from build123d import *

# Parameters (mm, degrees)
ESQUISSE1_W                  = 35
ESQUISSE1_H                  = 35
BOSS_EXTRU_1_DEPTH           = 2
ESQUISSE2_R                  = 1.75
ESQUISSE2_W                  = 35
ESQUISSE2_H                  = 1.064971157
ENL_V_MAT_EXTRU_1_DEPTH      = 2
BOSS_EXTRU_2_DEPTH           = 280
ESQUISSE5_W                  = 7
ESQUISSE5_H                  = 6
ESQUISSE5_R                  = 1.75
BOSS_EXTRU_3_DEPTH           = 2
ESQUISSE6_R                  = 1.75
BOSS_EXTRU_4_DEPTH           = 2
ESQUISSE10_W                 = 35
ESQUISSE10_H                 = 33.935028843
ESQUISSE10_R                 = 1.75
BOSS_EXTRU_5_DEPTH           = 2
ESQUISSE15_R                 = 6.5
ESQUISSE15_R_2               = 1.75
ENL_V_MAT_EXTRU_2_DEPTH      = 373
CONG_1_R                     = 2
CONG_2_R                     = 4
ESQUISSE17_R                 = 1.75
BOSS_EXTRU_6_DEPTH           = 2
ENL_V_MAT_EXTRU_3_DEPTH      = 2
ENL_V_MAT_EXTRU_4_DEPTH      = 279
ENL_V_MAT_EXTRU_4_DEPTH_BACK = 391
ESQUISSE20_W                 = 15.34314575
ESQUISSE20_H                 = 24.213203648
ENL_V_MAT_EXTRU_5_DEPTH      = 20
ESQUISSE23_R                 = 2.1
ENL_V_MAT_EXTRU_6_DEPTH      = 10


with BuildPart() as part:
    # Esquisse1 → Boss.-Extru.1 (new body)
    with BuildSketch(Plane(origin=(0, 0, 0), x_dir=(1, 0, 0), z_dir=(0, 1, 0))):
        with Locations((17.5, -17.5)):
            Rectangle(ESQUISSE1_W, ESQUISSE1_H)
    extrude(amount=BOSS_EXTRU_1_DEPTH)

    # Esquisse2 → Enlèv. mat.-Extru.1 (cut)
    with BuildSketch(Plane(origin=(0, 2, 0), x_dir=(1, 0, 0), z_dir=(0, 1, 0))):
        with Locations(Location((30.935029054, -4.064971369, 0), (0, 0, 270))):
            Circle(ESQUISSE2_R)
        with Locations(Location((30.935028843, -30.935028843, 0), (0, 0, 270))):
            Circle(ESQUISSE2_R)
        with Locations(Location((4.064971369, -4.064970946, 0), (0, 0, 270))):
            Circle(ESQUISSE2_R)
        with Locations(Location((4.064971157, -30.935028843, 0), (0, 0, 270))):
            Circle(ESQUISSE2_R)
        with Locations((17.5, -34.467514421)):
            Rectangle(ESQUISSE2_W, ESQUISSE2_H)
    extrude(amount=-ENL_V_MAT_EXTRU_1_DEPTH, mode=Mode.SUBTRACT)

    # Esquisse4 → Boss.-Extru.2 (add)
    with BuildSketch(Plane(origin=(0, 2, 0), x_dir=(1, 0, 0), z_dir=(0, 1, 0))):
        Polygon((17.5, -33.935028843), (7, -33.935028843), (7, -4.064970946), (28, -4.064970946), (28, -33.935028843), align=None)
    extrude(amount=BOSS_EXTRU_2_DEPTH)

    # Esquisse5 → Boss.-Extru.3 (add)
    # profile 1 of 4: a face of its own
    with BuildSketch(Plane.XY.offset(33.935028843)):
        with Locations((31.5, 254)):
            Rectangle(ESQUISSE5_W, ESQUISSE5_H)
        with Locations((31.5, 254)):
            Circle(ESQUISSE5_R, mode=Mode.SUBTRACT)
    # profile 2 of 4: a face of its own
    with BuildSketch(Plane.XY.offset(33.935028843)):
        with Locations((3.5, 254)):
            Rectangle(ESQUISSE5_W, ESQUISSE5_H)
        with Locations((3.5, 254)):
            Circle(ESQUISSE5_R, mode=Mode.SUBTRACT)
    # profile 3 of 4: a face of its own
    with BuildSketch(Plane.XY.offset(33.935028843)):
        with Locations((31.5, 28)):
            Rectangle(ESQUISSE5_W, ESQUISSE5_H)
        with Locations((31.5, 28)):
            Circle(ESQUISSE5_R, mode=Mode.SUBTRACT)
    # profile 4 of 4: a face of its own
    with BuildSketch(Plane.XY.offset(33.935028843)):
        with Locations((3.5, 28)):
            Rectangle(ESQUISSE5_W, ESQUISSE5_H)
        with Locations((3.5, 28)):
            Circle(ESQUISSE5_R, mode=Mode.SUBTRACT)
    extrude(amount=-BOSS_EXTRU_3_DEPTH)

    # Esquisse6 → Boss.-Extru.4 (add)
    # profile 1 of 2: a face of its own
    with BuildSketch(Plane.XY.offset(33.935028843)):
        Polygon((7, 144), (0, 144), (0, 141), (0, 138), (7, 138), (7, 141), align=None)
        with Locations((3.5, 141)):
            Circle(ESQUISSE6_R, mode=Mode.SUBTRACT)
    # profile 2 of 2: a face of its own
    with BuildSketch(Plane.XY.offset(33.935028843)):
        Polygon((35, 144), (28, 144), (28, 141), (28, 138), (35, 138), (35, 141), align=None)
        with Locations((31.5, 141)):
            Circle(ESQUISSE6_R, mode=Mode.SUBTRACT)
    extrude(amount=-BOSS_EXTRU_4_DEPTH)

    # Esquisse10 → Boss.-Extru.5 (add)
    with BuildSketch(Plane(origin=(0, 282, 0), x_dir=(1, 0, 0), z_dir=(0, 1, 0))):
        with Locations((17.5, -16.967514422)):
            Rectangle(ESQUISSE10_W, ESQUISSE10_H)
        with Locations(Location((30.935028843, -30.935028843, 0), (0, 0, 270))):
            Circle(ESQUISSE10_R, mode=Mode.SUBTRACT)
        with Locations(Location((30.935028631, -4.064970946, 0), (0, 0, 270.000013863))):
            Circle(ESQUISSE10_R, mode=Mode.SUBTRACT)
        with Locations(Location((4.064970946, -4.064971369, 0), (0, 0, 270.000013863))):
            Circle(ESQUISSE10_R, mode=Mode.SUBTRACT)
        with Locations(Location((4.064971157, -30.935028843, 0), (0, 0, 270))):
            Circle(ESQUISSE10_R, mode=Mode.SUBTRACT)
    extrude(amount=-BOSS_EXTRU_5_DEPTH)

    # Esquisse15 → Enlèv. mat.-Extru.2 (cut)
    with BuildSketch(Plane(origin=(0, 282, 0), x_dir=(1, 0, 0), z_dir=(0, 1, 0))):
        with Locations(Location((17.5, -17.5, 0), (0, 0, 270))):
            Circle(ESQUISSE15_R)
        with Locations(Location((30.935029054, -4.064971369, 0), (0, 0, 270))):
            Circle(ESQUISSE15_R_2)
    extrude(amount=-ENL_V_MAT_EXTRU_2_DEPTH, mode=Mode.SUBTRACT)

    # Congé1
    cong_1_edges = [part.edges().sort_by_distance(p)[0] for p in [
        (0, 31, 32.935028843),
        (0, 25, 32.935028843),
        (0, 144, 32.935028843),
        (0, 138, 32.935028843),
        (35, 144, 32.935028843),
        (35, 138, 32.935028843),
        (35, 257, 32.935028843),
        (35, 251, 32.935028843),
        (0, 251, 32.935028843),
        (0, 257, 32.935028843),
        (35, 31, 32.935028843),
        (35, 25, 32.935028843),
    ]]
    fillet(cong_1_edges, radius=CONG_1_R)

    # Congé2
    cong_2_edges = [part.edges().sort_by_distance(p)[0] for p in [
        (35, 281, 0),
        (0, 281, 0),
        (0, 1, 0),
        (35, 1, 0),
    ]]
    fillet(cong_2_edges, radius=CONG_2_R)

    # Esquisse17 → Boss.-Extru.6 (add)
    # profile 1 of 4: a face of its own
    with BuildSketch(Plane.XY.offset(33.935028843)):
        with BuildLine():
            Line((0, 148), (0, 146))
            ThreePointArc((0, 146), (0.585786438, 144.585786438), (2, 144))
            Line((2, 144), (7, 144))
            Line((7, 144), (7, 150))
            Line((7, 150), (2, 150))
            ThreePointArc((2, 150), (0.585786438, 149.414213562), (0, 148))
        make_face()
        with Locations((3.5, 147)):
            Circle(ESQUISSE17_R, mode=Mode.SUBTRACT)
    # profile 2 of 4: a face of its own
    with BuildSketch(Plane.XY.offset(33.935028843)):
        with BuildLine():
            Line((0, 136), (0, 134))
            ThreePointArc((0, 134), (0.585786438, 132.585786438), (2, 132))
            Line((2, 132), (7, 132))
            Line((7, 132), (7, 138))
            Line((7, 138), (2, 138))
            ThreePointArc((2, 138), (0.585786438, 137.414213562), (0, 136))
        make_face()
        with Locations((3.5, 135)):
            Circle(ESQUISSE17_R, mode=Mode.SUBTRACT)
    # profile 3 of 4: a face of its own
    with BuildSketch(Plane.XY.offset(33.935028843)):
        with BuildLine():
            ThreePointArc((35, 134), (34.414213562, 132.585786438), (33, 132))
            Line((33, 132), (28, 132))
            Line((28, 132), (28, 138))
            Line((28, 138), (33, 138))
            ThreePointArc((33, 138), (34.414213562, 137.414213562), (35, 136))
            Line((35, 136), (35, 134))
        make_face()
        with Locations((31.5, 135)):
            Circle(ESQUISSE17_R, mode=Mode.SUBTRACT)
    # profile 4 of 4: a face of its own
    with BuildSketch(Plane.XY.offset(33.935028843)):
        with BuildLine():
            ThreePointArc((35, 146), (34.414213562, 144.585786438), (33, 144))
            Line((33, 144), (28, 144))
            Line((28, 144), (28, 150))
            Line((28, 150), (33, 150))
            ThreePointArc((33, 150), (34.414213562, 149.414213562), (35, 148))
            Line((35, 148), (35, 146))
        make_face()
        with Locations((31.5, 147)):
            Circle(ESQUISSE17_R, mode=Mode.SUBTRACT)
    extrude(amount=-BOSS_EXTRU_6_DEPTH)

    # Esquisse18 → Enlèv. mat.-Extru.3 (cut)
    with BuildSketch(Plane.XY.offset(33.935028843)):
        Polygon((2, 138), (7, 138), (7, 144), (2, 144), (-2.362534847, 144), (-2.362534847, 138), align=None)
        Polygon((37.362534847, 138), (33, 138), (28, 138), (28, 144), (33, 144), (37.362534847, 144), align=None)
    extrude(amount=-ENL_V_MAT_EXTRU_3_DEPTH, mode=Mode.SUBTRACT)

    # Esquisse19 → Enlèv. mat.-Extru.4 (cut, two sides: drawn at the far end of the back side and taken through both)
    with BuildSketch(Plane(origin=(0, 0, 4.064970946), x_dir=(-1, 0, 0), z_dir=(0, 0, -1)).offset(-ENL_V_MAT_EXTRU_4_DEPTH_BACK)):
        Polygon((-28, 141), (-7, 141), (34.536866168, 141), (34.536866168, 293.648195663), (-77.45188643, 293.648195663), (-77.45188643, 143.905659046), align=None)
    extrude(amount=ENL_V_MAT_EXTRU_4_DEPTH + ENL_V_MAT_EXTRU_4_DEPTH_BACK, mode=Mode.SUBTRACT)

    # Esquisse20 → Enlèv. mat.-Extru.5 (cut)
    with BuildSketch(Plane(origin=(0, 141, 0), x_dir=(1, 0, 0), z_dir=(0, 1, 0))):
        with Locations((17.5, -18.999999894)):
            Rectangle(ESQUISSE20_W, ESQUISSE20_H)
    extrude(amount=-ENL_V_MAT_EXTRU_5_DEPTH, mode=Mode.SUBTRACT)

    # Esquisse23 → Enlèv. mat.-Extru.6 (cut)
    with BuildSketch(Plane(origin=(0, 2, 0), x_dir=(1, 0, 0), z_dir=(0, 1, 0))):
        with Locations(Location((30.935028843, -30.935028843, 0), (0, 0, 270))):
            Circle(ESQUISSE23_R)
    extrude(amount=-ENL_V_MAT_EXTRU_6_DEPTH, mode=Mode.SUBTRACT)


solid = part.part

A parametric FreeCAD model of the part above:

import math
import FreeCAD as App
import Part
import Sketcher
from FreeCAD import Vector


def edges_at(feature, points):
    """Names of the edges that pass closest to the given points."""
    edges = feature.Shape.Edges
    near = lambda p: min(range(len(edges)), key=lambda i: edges[i].distToShape(Part.Vertex(*p))[0])
    return sorted({f"Edge{near(p) + 1}" for p in points})


def add_polygon(sketch, points):
    """Adds a closed chain of lines whose ends are joined by coincident constraints."""
    first, n = sketch.GeometryCount, len(points)
    for a, b in zip(points, points[1:] + points[:1]):
        sketch.addGeometry(Part.LineSegment(App.Vector(*a, 0), App.Vector(*b, 0)), False)
    for i in range(n):
        sketch.addConstraint(Sketcher.Constraint("Coincident", first + i, 2, first + (i + 1) % n, 1))

doc = App.newDocument("Part")
body = doc.addObject("PartDesign::Body", "Body")

sketch1 = doc.addObject("Sketcher::SketchObject", "Sketch")
body.addObject(sketch1)
sketch1.AttachmentSupport = (doc.XZ_Plane, [""])
sketch1.MapMode = "FlatFace"
add_polygon(sketch1, [(0, 0), (0, 35), (35, 35), (35, 0)])
sketch1.addConstraint(Sketcher.Constraint("Vertical", 0))
sketch1.addConstraint(Sketcher.Constraint("Horizontal", 1))
sketch1.addConstraint(Sketcher.Constraint("Vertical", 2))
sketch1.addConstraint(Sketcher.Constraint("Horizontal", 3))
sketch1.addConstraint(Sketcher.Constraint("Coincident", 3, 2, -1, 1))
sketch1.addConstraint(Sketcher.Constraint("Equal", 3, 0))
sketch1.addConstraint(Sketcher.Constraint("DistanceX", 1, 1, 1, 2, 35.0))
pad1 = doc.addObject("PartDesign::Pad", "Pad")
body.addObject(pad1)
pad1.Profile = sketch1
pad1.Length = 2
pad1.Reversed = True

sketch2 = doc.addObject("Sketcher::SketchObject", "Sketch001")
body.addObject(sketch2)
sketch2.AttachmentSupport = (doc.XZ_Plane, [""])
sketch2.MapMode = "FlatFace"
sketch2.AttachmentOffset = App.Placement(Vector(0, 0, -2), App.Rotation())
sketch2.addGeometry(Part.Circle(Vector(30.9, 4.1, 0), Vector(0, 0, 1), 1.8), False)
sketch2.addGeometry(Part.Circle(Vector(30.9, 30.9, 0), Vector(0, 0, 1), 1.8), False)
sketch2.addGeometry(Part.Circle(Vector(4.1, 4.1, 0), Vector(0, 0, 1), 1.8), False)
sketch2.addGeometry(Part.Circle(Vector(4.1, 30.9, 0), Vector(0, 0, 1), 1.8), False)
add_polygon(sketch2, [(0, 33.9), (0, 35), (35, 35), (35, 33.9)])
sketch2.addConstraint(Sketcher.Constraint("Vertical", 4))
sketch2.addConstraint(Sketcher.Constraint("Horizontal", 5))
sketch2.addConstraint(Sketcher.Constraint("Vertical", 6))
sketch2.addConstraint(Sketcher.Constraint("Horizontal", 7))
sketch2.addConstraint(Sketcher.Constraint("Equal", 0, 1))
sketch2.addConstraint(Sketcher.Constraint("Equal", 1, 2))
sketch2.addConstraint(Sketcher.Constraint("Equal", 2, 3))
sketch2.addConstraint(Sketcher.Constraint("PointOnObject", 4, 2, -2))
sketch2.addConstraint(Sketcher.Constraint("Horizontal", 0, 3, 2, 3))
sketch2.addConstraint(Sketcher.Constraint("Horizontal", 1, 3, 3, 3))
sketch2.addConstraint(Sketcher.Constraint("Vertical", 0, 3, 1, 3))
sketch2.addConstraint(Sketcher.Constraint("Vertical", 2, 3, 3, 3))
sketch2.addConstraint(Sketcher.Constraint("Diameter", 0, 3.5))
sketch2.addConstraint(Sketcher.Constraint("DistanceX", 5, 1, 5, 2, 35.0))
sketch2.addConstraint(Sketcher.Constraint("DistanceY", -1, 1, 4, 2, 35.0))
sketch2.addConstraint(Sketcher.Constraint("DistanceY", 1, 3, 6, 2, 3.0))
sketch2.addConstraint(Sketcher.Constraint("DistanceY", 4, 1, 4, 2, 1.064971))
sketch2.addConstraint(Sketcher.Constraint("DistanceX", -1, 1, 0, 3, 30.935029))
sketch2.addConstraint(Sketcher.Constraint("DistanceY", -1, 1, 0, 3, 4.064971))
sketch2.addConstraint(Sketcher.Constraint("DistanceX", -1, 1, 2, 3, 4.064971))
pocket1 = doc.addObject("PartDesign::Pocket", "Pocket")
body.addObject(pocket1)
pocket1.Profile = sketch2
pocket1.Length = 2
pocket1.Reversed = True

sketch3 = doc.addObject("Sketcher::SketchObject", "Sketch002")
body.addObject(sketch3)
sketch3.AttachmentSupport = (doc.XZ_Plane, [""])
sketch3.MapMode = "FlatFace"
sketch3.AttachmentOffset = App.Placement(Vector(0, 0, -2), App.Rotation())
add_polygon(sketch3, [(7, 34), (28, 34), (28, 4), (7, 4)])
sketch3.addConstraint(Sketcher.Constraint("Horizontal", 0))
sketch3.addConstraint(Sketcher.Constraint("Vertical", 1))
sketch3.addConstraint(Sketcher.Constraint("Horizontal", 2))
sketch3.addConstraint(Sketcher.Constraint("Vertical", 3))
sketch3.addConstraint(Sketcher.Constraint("DistanceX", 0, 1, 0, 2, 21.0))
sketch3.addConstraint(Sketcher.Constraint("DistanceX", -1, 1, 0, 2, 28.0))
sketch3.addConstraint(Sketcher.Constraint("DistanceY", 1, 2, 1, 1, 29.870058))
sketch3.addConstraint(Sketcher.Constraint("DistanceY", -1, 1, 0, 2, 33.935029))
pad2 = doc.addObject("PartDesign::Pad", "Pad001")
body.addObject(pad2)
pad2.Profile = sketch3
pad2.Length = 280
pad2.Reversed = True

sketch4 = doc.addObject("Sketcher::SketchObject", "Sketch003")
body.addObject(sketch4)
sketch4.AttachmentSupport = (doc.XY_Plane, [""])
sketch4.MapMode = "FlatFace"
sketch4.AttachmentOffset = App.Placement(Vector(0, 0, 33.935029), App.Rotation())
add_polygon(sketch4, [(28, 257), (28, 251), (35, 251), (35, 257)])
sketch4.addGeometry(Part.Circle(Vector(31.5, 254, 0), Vector(0, 0, 1), 1.8), False)
add_polygon(sketch4, [(0, 257), (0, 251), (7, 251), (7, 257)])
sketch4.addGeometry(Part.Circle(Vector(3.5, 254, 0), Vector(0, 0, 1), 1.8), False)
add_polygon(sketch4, [(28, 31), (28, 25), (35, 25), (35, 31)])
sketch4.addGeometry(Part.Circle(Vector(31.5, 28, 0), Vector(0, 0, 1), 1.8), False)
add_polygon(sketch4, [(0, 31), (0, 25), (7, 25), (7, 31)])
sketch4.addGeometry(Part.Circle(Vector(3.5, 28, 0), Vector(0, 0, 1), 1.8), False)
sketch4.addConstraint(Sketcher.Constraint("Vertical", 0))
sketch4.addConstraint(Sketcher.Constraint("Horizontal", 1))
sketch4.addConstraint(Sketcher.Constraint("Vertical", 2))
sketch4.addConstraint(Sketcher.Constraint("Horizontal", 3))
sketch4.addConstraint(Sketcher.Constraint("Vertical", 5))
sketch4.addConstraint(Sketcher.Constraint("Horizontal", 6))
sketch4.addConstraint(Sketcher.Constraint("Vertical", 7))
sketch4.addConstraint(Sketcher.Constraint("Horizontal", 8))
sketch4.addConstraint(Sketcher.Constraint("Vertical", 10))
sketch4.addConstraint(Sketcher.Constraint("Horizontal", 11))
sketch4.addConstraint(Sketcher.Constraint("Vertical", 12))
sketch4.addConstraint(Sketcher.Constraint("Horizontal", 13))
sketch4.addConstraint(Sketcher.Constraint("Vertical", 15))
sketch4.addConstraint(Sketcher.Constraint("Horizontal", 16))
sketch4.addConstraint(Sketcher.Constraint("Vertical", 17))
sketch4.addConstraint(Sketcher.Constraint("Horizontal", 18))
sketch4.addConstraint(Sketcher.Constraint("Equal", 4, 9))
sketch4.addConstraint(Sketcher.Constraint("Equal", 9, 14))
sketch4.addConstraint(Sketcher.Constraint("Equal", 14, 19))
sketch4.addConstraint(Sketcher.Constraint("PointOnObject", 5, 2, -2))
sketch4.addConstraint(Sketcher.Constraint("PointOnObject", 15, 2, -2))
sketch4.addConstraint(Sketcher.Constraint("Horizontal", 4, 3, 9, 3))
sketch4.addConstraint(Sketcher.Constraint("Horizontal", 14, 3, 19, 3))
sketch4.addConstraint(Sketcher.Constraint("Horizontal", 1, 2, 5, 2))
sketch4.addConstraint(Sketcher.Constraint("Horizontal", 3, 2, 7, 2))
sketch4.addConstraint(Sketcher.Constraint("Horizontal", 11, 2, 15, 2))
sketch4.addConstraint(Sketcher.Constraint("Horizontal", 13, 2, 17, 2))
sketch4.addConstraint(Sketcher.Constraint("Vertical", 4, 3, 14, 3))
sketch4.addConstraint(Sketcher.Constraint("Vertical", 9, 3, 19, 3))
sketch4.addConstraint(Sketcher.Constraint("Vertical", 3, 2, 10, 2))
sketch4.addConstraint(Sketcher.Constraint("Vertical", 2, 2, 11, 2))
sketch4.addConstraint(Sketcher.Constraint("Vertical", 7, 2, 16, 2))
sketch4.addConstraint(Sketcher.Constraint("Equal", 3, 6))
sketch4.addConstraint(Sketcher.Constraint("Equal", 7, 10))
sketch4.addConstraint(Sketcher.Constraint("Diameter", 4, 3.5))
sketch4.addConstraint(Sketcher.Constraint("DistanceX", 1, 1, 1, 2, 7.0))
sketch4.addConstraint(Sketcher.Constraint("DistanceY", 0, 2, 0, 1, 6.0))
sketch4.addConstraint(Sketcher.Constraint("DistanceY", -1, 1, 4, 3, 254.0))
sketch4.addConstraint(Sketcher.Constraint("DistanceY", -1, 1, 14, 3, 28.0))
sketch4.addConstraint(Sketcher.Constraint("DistanceX", -1, 1, 0, 2, 28.0))
sketch4.addConstraint(Sketcher.Constraint("DistanceY", -1, 1, 0, 2, 251.0))
sketch4.addConstraint(Sketcher.Constraint("DistanceY", -1, 1, 10, 2, 25.0))
sketch4.addConstraint(Sketcher.Constraint("DistanceX", 9, 3, 4, 3, 28.0))
sketch4.addConstraint(Sketcher.Constraint("DistanceX", -1, 1, 4, 3, 31.5))
pad3 = doc.addObject("PartDesign::Pad", "Pad002")
body.addObject(pad3)
pad3.Profile = sketch4
pad3.Length = 2
pad3.Reversed = True

sketch5 = doc.addObject("Sketcher::SketchObject", "Sketch004")
body.addObject(sketch5)
sketch5.AttachmentSupport = (doc.XY_Plane, [""])
sketch5.MapMode = "FlatFace"
sketch5.AttachmentOffset = App.Placement(Vector(0, 0, 33.935029), App.Rotation())
add_polygon(sketch5, [(7, 144), (0, 144), (0, 138), (7, 138)])
sketch5.addGeometry(Part.Circle(Vector(3.5, 141, 0), Vector(0, 0, 1), 1.8), False)
add_polygon(sketch5, [(35, 144), (28, 144), (28, 138), (35, 138)])
sketch5.addGeometry(Part.Circle(Vector(31.5, 141, 0), Vector(0, 0, 1), 1.8), False)
sketch5.addConstraint(Sketcher.Constraint("Horizontal", 0))
sketch5.addConstraint(Sketcher.Constraint("Vertical", 1))
sketch5.addConstraint(Sketcher.Constraint("Horizontal", 2))
sketch5.addConstraint(Sketcher.Constraint("Vertical", 3))
sketch5.addConstraint(Sketcher.Constraint("Horizontal", 5))
sketch5.addConstraint(Sketcher.Constraint("Vertical", 6))
sketch5.addConstraint(Sketcher.Constraint("Horizontal", 7))
sketch5.addConstraint(Sketcher.Constraint("Vertical", 8))
sketch5.addConstraint(Sketcher.Constraint("Equal", 4, 9))
sketch5.addConstraint(Sketcher.Constraint("PointOnObject", 0, 2, -2))
sketch5.addConstraint(Sketcher.Constraint("Horizontal", 4, 3, 9, 3))
sketch5.addConstraint(Sketcher.Constraint("Horizontal", 3, 2, 5, 2))
sketch5.addConstraint(Sketcher.Constraint("Horizontal", 2, 2, 6, 2))
sketch5.addConstraint(Sketcher.Constraint("Equal", 2, 5))
sketch5.addConstraint(Sketcher.Constraint("Diameter", 4, 3.5))
sketch5.addConstraint(Sketcher.Constraint("DistanceX", 0, 2, 0, 1, 7.0))
sketch5.addConstraint(Sketcher.Constraint("DistanceY", 1, 2, 1, 1, 6.0))
sketch5.addConstraint(Sketcher.Constraint("DistanceY", -1, 1, 4, 3, 141.0))
sketch5.addConstraint(Sketcher.Constraint("DistanceY", -1, 1, 0, 2, 144.0))
sketch5.addConstraint(Sketcher.Constraint("DistanceX", -1, 1, 5, 2, 28.0))
sketch5.addConstraint(Sketcher.Constraint("DistanceX", 4, 3, 9, 3, 28.0))
sketch5.addConstraint(Sketcher.Constraint("DistanceX", -1, 1, 4, 3, 3.5))
pad4 = doc.addObject("PartDesign::Pad", "Pad003")
body.addObject(pad4)
pad4.Profile = sketch5
pad4.Length = 2
pad4.Reversed = True

sketch6 = doc.addObject("Sketcher::SketchObject", "Sketch005")
body.addObject(sketch6)
sketch6.AttachmentSupport = (doc.XZ_Plane, [""])
sketch6.MapMode = "FlatFace"
sketch6.AttachmentOffset = App.Placement(Vector(0, 0, -282), App.Rotation())
add_polygon(sketch6, [(0, 0), (0, 33.9), (35, 33.9), (35, 0)])
sketch6.addGeometry(Part.Circle(Vector(4.1, 30.9, 0), Vector(0, 0, 1), 1.8), False)
sketch6.addGeometry(Part.Circle(Vector(30.9, 30.9, 0), Vector(0, 0, 1), 1.8), False)
sketch6.addGeometry(Part.Circle(Vector(4.1, 4.1, 0), Vector(0, 0, 1), 1.8), False)
sketch6.addGeometry(Part.Circle(Vector(30.9, 4.1, 0), Vector(0, 0, 1), 1.8), False)
sketch6.addConstraint(Sketcher.Constraint("Vertical", 0))
sketch6.addConstraint(Sketcher.Constraint("Horizontal", 1))
sketch6.addConstraint(Sketcher.Constraint("Vertical", 2))
sketch6.addConstraint(Sketcher.Constraint("Horizontal", 3))
sketch6.addConstraint(Sketcher.Constraint("Coincident", 3, 2, -1, 1))
sketch6.addConstraint(Sketcher.Constraint("Equal", 4, 5))
sketch6.addConstraint(Sketcher.Constraint("Equal", 5, 6))
sketch6.addConstraint(Sketcher.Constraint("Equal", 6, 7))
sketch6.addConstraint(Sketcher.Constraint("Horizontal", 4, 3, 5, 3))
sketch6.addConstraint(Sketcher.Constraint("Horizontal", 6, 3, 7, 3))
sketch6.addConstraint(Sketcher.Constraint("Vertical", 4, 3, 6, 3))
sketch6.addConstraint(Sketcher.Constraint("Vertical", 5, 3, 7, 3))
sketch6.addConstraint(Sketcher.Constraint("Diameter", 4, 3.5))
sketch6.addConstraint(Sketcher.Constraint("DistanceX", 1, 1, 1, 2, 35.0))
sketch6.addConstraint(Sketcher.Constraint("DistanceY", 4, 3, 0, 2, 3.0))
sketch6.addConstraint(Sketcher.Constraint("DistanceY", 0, 1, 0, 2, 33.935029))
sketch6.addConstraint(Sketcher.Constraint("DistanceX", -1, 1, 4, 3, 4.064971))
sketch6.addConstraint(Sketcher.Constraint("DistanceX", -1, 1, 5, 3, 30.935029))
sketch6.addConstraint(Sketcher.Constraint("DistanceY", -1, 1, 6, 3, 4.064971))
pad5 = doc.addObject("PartDesign::Pad", "Pad004")
body.addObject(pad5)
pad5.Profile = sketch6
pad5.Length = 2

sketch7 = doc.addObject("Sketcher::SketchObject", "Sketch006")
body.addObject(sketch7)
sketch7.AttachmentSupport = (doc.XZ_Plane, [""])
sketch7.MapMode = "FlatFace"
sketch7.AttachmentOffset = App.Placement(Vector(0, 0, -282), App.Rotation())
sketch7.addGeometry(Part.Circle(Vector(17.5, 17.5, 0), Vector(0, 0, 1), 6.5), False)
sketch7.addGeometry(Part.Circle(Vector(30.9, 4.1, 0), Vector(0, 0, 1), 1.8), False)
sketch7.addConstraint(Sketcher.Constraint("Diameter", 0, 13.0))
sketch7.addConstraint(Sketcher.Constraint("Diameter", 1, 3.5))
sketch7.addConstraint(Sketcher.Constraint("DistanceX", -1, 1, 0, 3, 17.5))
sketch7.addConstraint(Sketcher.Constraint("DistanceY", -1, 1, 0, 3, 17.5))
sketch7.addConstraint(Sketcher.Constraint("DistanceX", -1, 1, 1, 3, 30.935029))
sketch7.addConstraint(Sketcher.Constraint("DistanceY", -1, 1, 1, 3, 4.064971))
pocket2 = doc.addObject("PartDesign::Pocket", "Pocket001")
body.addObject(pocket2)
pocket2.Profile = sketch7
pocket2.Length = 373
pocket2.Reversed = True
doc.recompute()

fillet = doc.addObject("PartDesign::Fillet", "Fillet")
body.addObject(fillet)
fillet.Base = (pocket2, edges_at(pocket2, [
    (0, 31, 32.935),
    (0, 25, 32.935),
    (0, 144, 32.935),
    (0, 138, 32.935),
    (35, 144, 32.935),
    (35, 138, 32.935),
    (35, 257, 32.935),
    (35, 251, 32.935),
    (0, 251, 32.935),
    (0, 257, 32.935),
    (35, 31, 32.935),
    (35, 25, 32.935),
]))
fillet.Radius = 2
doc.recompute()

fillet2 = doc.addObject("PartDesign::Fillet", "Fillet001")
body.addObject(fillet2)
fillet2.Base = (fillet, edges_at(fillet, [
    (35, 281, 0),
    (0, 281, 0),
    (0, 1, 0),
    (35, 1, 0),
]))
fillet2.Radius = 4

sketch8 = doc.addObject("Sketcher::SketchObject", "Sketch007")
body.addObject(sketch8)
sketch8.AttachmentSupport = (doc.XY_Plane, [""])
sketch8.MapMode = "FlatFace"
sketch8.AttachmentOffset = App.Placement(Vector(0, 0, 33.935029), App.Rotation())
sketch8.addGeometry(Part.LineSegment(Vector(0, 148, 0), Vector(0, 146, 0)), False)
sketch8.addGeometry(Part.ArcOfCircle(Part.Circle(Vector(2, 146, 0), Vector(0, 0, 1), 2), math.radians(-180), math.radians(-90)), False)
sketch8.addGeometry(Part.LineSegment(Vector(2, 144, 0), Vector(7, 144, 0)), False)
sketch8.addGeometry(Part.LineSegment(Vector(7, 144, 0), Vector(7, 150, 0)), False)
sketch8.addGeometry(Part.LineSegment(Vector(7, 150, 0), Vector(2, 150, 0)), False)
sketch8.addGeometry(Part.ArcOfCircle(Part.Circle(Vector(2, 148, 0), Vector(0, 0, 1), 2), math.radians(90), math.radians(180)), False)
sketch8.addGeometry(Part.Circle(Vector(3.5, 147, 0), Vector(0, 0, 1), 1.8), False)
sketch8.addGeometry(Part.LineSegment(Vector(0, 136, 0), Vector(0, 134, 0)), False)
sketch8.addGeometry(Part.ArcOfCircle(Part.Circle(Vector(2, 134, 0), Vector(0, 0, 1), 2), math.radians(-180), math.radians(-90)), False)
sketch8.addGeometry(Part.LineSegment(Vector(2, 132, 0), Vector(7, 132, 0)), False)
sketch8.addGeometry(Part.LineSegment(Vector(7, 132, 0), Vector(7, 138, 0)), False)
sketch8.addGeometry(Part.LineSegment(Vector(7, 138, 0), Vector(2, 138, 0)), False)
sketch8.addGeometry(Part.ArcOfCircle(Part.Circle(Vector(2, 136, 0), Vector(0, 0, 1), 2), math.radians(90), math.radians(180)), False)
sketch8.addGeometry(Part.Circle(Vector(3.5, 135, 0), Vector(0, 0, 1), 1.8), False)
sketch8.addGeometry(Part.ArcOfCircle(Part.Circle(Vector(33, 134, 0), Vector(0, 0, 1), 2), math.radians(-90), math.radians(0)), False)
sketch8.addGeometry(Part.LineSegment(Vector(35, 134, 0), Vector(35, 136, 0)), False)
sketch8.addGeometry(Part.ArcOfCircle(Part.Circle(Vector(33, 136, 0), Vector(0, 0, 1), 2), math.radians(0), math.radians(90)), False)
sketch8.addGeometry(Part.LineSegment(Vector(33, 138, 0), Vector(28, 138, 0)), False)
sketch8.addGeometry(Part.LineSegment(Vector(28, 138, 0), Vector(28, 132, 0)), False)
sketch8.addGeometry(Part.LineSegment(Vector(28, 132, 0), Vector(33, 132, 0)), False)
sketch8.addGeometry(Part.Circle(Vector(31.5, 135, 0), Vector(0, 0, 1), 1.8), False)
sketch8.addGeometry(Part.ArcOfCircle(Part.Circle(Vector(33, 146, 0), Vector(0, 0, 1), 2), math.radians(-90), math.radians(0)), False)
sketch8.addGeometry(Part.LineSegment(Vector(35, 146, 0), Vector(35, 148, 0)), False)
sketch8.addGeometry(Part.ArcOfCircle(Part.Circle(Vector(33, 148, 0), Vector(0, 0, 1), 2), math.radians(0), math.radians(90)), False)
sketch8.addGeometry(Part.LineSegment(Vector(33, 150, 0), Vector(28, 150, 0)), False)
sketch8.addGeometry(Part.LineSegment(Vector(28, 150, 0), Vector(28, 144, 0)), False)
sketch8.addGeometry(Part.LineSegment(Vector(28, 144, 0), Vector(33, 144, 0)), False)
sketch8.addGeometry(Part.Circle(Vector(31.5, 147, 0), Vector(0, 0, 1), 1.8), False)
sketch8.addConstraint(Sketcher.Constraint("Tangent", 0, 2, 1, 1))
sketch8.addConstraint(Sketcher.Constraint("Tangent", 1, 2, 2, 1))
sketch8.addConstraint(Sketcher.Constraint("Coincident", 2, 2, 3, 1))
sketch8.addConstraint(Sketcher.Constraint("Coincident", 3, 2, 4, 1))
sketch8.addConstraint(Sketcher.Constraint("Tangent", 4, 2, 5, 1))
sketch8.addConstraint(Sketcher.Constraint("Tangent", 5, 2, 0, 1))
sketch8.addConstraint(Sketcher.Constraint("Tangent", 7, 2, 8, 1))
sketch8.addConstraint(Sketcher.Constraint("Tangent", 8, 2, 9, 1))
sketch8.addConstraint(Sketcher.Constraint("Coincident", 9, 2, 10, 1))
sketch8.addConstraint(Sketcher.Constraint("Coincident", 10, 2, 11, 1))
sketch8.addConstraint(Sketcher.Constraint("Tangent", 11, 2, 12, 1))
sketch8.addConstraint(Sketcher.Constraint("Tangent", 12, 2, 7, 1))
sketch8.addConstraint(Sketcher.Constraint("Tangent", 14, 2, 15, 1))
sketch8.addConstraint(Sketcher.Constraint("Tangent", 15, 2, 16, 1))
sketch8.addConstraint(Sketcher.Constraint("Tangent", 16, 2, 17, 1))
sketch8.addConstraint(Sketcher.Constraint("Coincident", 17, 2, 18, 1))
sketch8.addConstraint(Sketcher.Constraint("Coincident", 18, 2, 19, 1))
sketch8.addConstraint(Sketcher.Constraint("Tangent", 19, 2, 14, 1))
sketch8.addConstraint(Sketcher.Constraint("Tangent", 21, 2, 22, 1))
sketch8.addConstraint(Sketcher.Constraint("Tangent", 22, 2, 23, 1))
sketch8.addConstraint(Sketcher.Constraint("Tangent", 23, 2, 24, 1))
sketch8.addConstraint(Sketcher.Constraint("Coincident", 24, 2, 25, 1))
sketch8.addConstraint(Sketcher.Constraint("Coincident", 25, 2, 26, 1))
sketch8.addConstraint(Sketcher.Constraint("Tangent", 26, 2, 21, 1))
sketch8.addConstraint(Sketcher.Constraint("Vertical", 0))
sketch8.addConstraint(Sketcher.Constraint("Horizontal", 2))
sketch8.addConstraint(Sketcher.Constraint("Vertical", 3))
sketch8.addConstraint(Sketcher.Constraint("Horizontal", 4))
sketch8.addConstraint(Sketcher.Constraint("Vertical", 7))
sketch8.addConstraint(Sketcher.Constraint("Horizontal", 9))
sketch8.addConstraint(Sketcher.Constraint("Vertical", 10))
sketch8.addConstraint(Sketcher.Constraint("Horizontal", 11))
sketch8.addConstraint(Sketcher.Constraint("Vertical", 15))
sketch8.addConstraint(Sketcher.Constraint("Horizontal", 17))
sketch8.addConstraint(Sketcher.Constraint("Vertical", 18))
sketch8.addConstraint(Sketcher.Constraint("Horizontal", 19))
sketch8.addConstraint(Sketcher.Constraint("Vertical", 22))
sketch8.addConstraint(Sketcher.Constraint("Horizontal", 24))
sketch8.addConstraint(Sketcher.Constraint("Vertical", 25))
sketch8.addConstraint(Sketcher.Constraint("Horizontal", 26))
sketch8.addConstraint(Sketcher.Constraint("Equal", 1, 5))
sketch8.addConstraint(Sketcher.Constraint("Equal", 5, 8))
sketch8.addConstraint(Sketcher.Constraint("Equal", 8, 12))
sketch8.addConstraint(Sketcher.Constraint("Equal", 6, 13))
sketch8.addConstraint(Sketcher.Constraint("Equal", 12, 14))
sketch8.addConstraint(Sketcher.Constraint("Equal", 14, 16))
sketch8.addConstraint(Sketcher.Constraint("Equal", 13, 20))
sketch8.addConstraint(Sketcher.Constraint("Equal", 16, 21))
sketch8.addConstraint(Sketcher.Constraint("Equal", 21, 23))
sketch8.addConstraint(Sketcher.Constraint("Equal", 20, 27))
sketch8.addConstraint(Sketcher.Constraint("PointOnObject", 0, 2, -2))
sketch8.addConstraint(Sketcher.Constraint("PointOnObject", 7, 2, -2))
sketch8.addConstraint(Sketcher.Constraint("Horizontal", 8, 3, 14, 3))
sketch8.addConstraint(Sketcher.Constraint("Horizontal", 12, 3, 16, 3))
sketch8.addConstraint(Sketcher.Constraint("Horizontal", 13, 3, 20, 3))
sketch8.addConstraint(Sketcher.Constraint("Horizontal", 1, 3, 21, 3))
sketch8.addConstraint(Sketcher.Constraint("Horizontal", 5, 3, 23, 3))
sketch8.addConstraint(Sketcher.Constraint("Horizontal", 6, 3, 27, 3))
sketch8.addConstraint(Sketcher.Constraint("Vertical", 6, 3, 13, 3))
sketch8.addConstraint(Sketcher.Constraint("Vertical", 16, 3, 21, 3))
sketch8.addConstraint(Sketcher.Constraint("Vertical", 20, 3, 27, 3))
sketch8.addConstraint(Sketcher.Constraint("Vertical", 3, 2, 9, 2))
sketch8.addConstraint(Sketcher.Constraint("Vertical", 18, 2, 24, 2))
sketch8.addConstraint(Sketcher.Constraint("Equal", 11, 17))
sketch8.addConstraint(Sketcher.Constraint("Equal", 0, 7))
sketch8.addConstraint(Sketcher.Constraint("Radius", 1, 2.0))
sketch8.addConstraint(Sketcher.Constraint("Diameter", 6, 3.5))
sketch8.addConstraint(Sketcher.Constraint("DistanceX", 2, 1, 2, 2, 5.0))
sketch8.addConstraint(Sketcher.Constraint("DistanceY", 0, 2, 0, 1, 2.0))
sketch8.addConstraint(Sketcher.Constraint("DistanceY", -1, 1, 1, 3, 146.0))
sketch8.addConstraint(Sketcher.Constraint("DistanceY", -1, 1, 6, 3, 147.0))
sketch8.addConstraint(Sketcher.Constraint("DistanceY", -1, 1, 8, 3, 134.0))
sketch8.addConstraint(Sketcher.Constraint("DistanceY", -1, 1, 13, 3, 135.0))
sketch8.addConstraint(Sketcher.Constraint("DistanceX", -1, 1, 14, 3, 33.0))
sketch8.addConstraint(Sketcher.Constraint("DistanceX", 13, 3, 20, 3, 28.0))
sketch8.addConstraint(Sketcher.Constraint("DistanceX", -1, 1, 6, 3, 3.5))
pad6 = doc.addObject("PartDesign::Pad", "Pad005")
body.addObject(pad6)
pad6.Profile = sketch8
pad6.Length = 2
pad6.Reversed = True

sketch9 = doc.addObject("Sketcher::SketchObject", "Sketch008")
body.addObject(sketch9)
sketch9.AttachmentSupport = (doc.XY_Plane, [""])
sketch9.MapMode = "FlatFace"
sketch9.AttachmentOffset = App.Placement(Vector(0, 0, 33.935029), App.Rotation())
add_polygon(sketch9, [(7, 138), (7, 144), (-2, 144), (-2, 138)])
add_polygon(sketch9, [(28, 138), (37, 138), (37, 144), (28, 144)])
sketch9.addConstraint(Sketcher.Constraint("Vertical", 0))
sketch9.addConstraint(Sketcher.Constraint("Horizontal", 1))
sketch9.addConstraint(Sketcher.Constraint("Vertical", 2))
sketch9.addConstraint(Sketcher.Constraint("Horizontal", 3))
sketch9.addConstraint(Sketcher.Constraint("Horizontal", 4))
sketch9.addConstraint(Sketcher.Constraint("Vertical", 5))
sketch9.addConstraint(Sketcher.Constraint("Horizontal", 6))
sketch9.addConstraint(Sketcher.Constraint("Vertical", 7))
sketch9.addConstraint(Sketcher.Constraint("Horizontal", 3, 2, 4, 2))
sketch9.addConstraint(Sketcher.Constraint("Horizontal", 1, 2, 5, 2))
sketch9.addConstraint(Sketcher.Constraint("Equal", 3, 4))
sketch9.addConstraint(Sketcher.Constraint("DistanceY", 0, 1, 0, 2, 6.0))
sketch9.addConstraint(Sketcher.Constraint("DistanceX", -1, 1, 0, 2, 7.0))
sketch9.addConstraint(Sketcher.Constraint("DistanceY", -1, 1, 0, 2, 144.0))
sketch9.addConstraint(Sketcher.Constraint("DistanceX", -1, 1, 6, 2, 28.0))
sketch9.addConstraint(Sketcher.Constraint("DistanceX", 1, 2, 1, 1, 9.362535))
pocket3 = doc.addObject("PartDesign::Pocket", "Pocket002")
body.addObject(pocket3)
pocket3.Profile = sketch9
pocket3.Length = 2

sketch10 = doc.addObject("Sketcher::SketchObject", "Sketch009")
body.addObject(sketch10)
sketch10.AttachmentSupport = (doc.XY_Plane, [""])
sketch10.MapMode = "FlatFace"
sketch10.AttachmentOffset = App.Placement(Vector(0, 0, 4.064971), App.Rotation())
add_polygon(sketch10, [(28, 141), (-35, 141), (-35, 294), (77, 294), (77, 144)])
sketch10.addConstraint(Sketcher.Constraint("Horizontal", 0))
sketch10.addConstraint(Sketcher.Constraint("Vertical", 1))
sketch10.addConstraint(Sketcher.Constraint("Horizontal", 2))
sketch10.addConstraint(Sketcher.Constraint("Vertical", 3))
sketch10.addConstraint(Sketcher.Constraint("DistanceY", -1, 1, 0, 2, 141.0))
sketch10.addConstraint(Sketcher.Constraint("DistanceX", -1, 1, 4, 2, 28.0))
sketch10.addConstraint(Sketcher.Constraint("DistanceX", 0, 2, 0, 1, 62.536866))
sketch10.addConstraint(Sketcher.Constraint("DistanceX", 2, 1, 2, 2, 111.988753))
sketch10.addConstraint(Sketcher.Constraint("DistanceY", 1, 1, 1, 2, 152.648196))
sketch10.addConstraint(Sketcher.Constraint("DistanceY", 3, 2, 3, 1, 149.742537))
pocket4 = doc.addObject("PartDesign::Pocket", "Pocket003")
body.addObject(pocket4)
pocket4.Profile = sketch10
pocket4.Type = "ThroughAll"
pocket4.Midplane = True

sketch11 = doc.addObject("Sketcher::SketchObject", "Sketch010")
body.addObject(sketch11)
sketch11.AttachmentSupport = (doc.XZ_Plane, [""])
sketch11.MapMode = "FlatFace"
sketch11.AttachmentOffset = App.Placement(Vector(0, 0, -141), App.Rotation())
add_polygon(sketch11, [(10, 7), (10, 31), (25, 31), (25, 7)])
sketch11.addConstraint(Sketcher.Constraint("Vertical", 0))
sketch11.addConstraint(Sketcher.Constraint("Horizontal", 1))
sketch11.addConstraint(Sketcher.Constraint("Vertical", 2))
sketch11.addConstraint(Sketcher.Constraint("Horizontal", 3))
sketch11.addConstraint(Sketcher.Constraint("DistanceY", -1, 1, 0, 2, 31.106602))
sketch11.addConstraint(Sketcher.Constraint("DistanceY", -1, 1, 2, 2, 6.893398))
sketch11.addConstraint(Sketcher.Constraint("DistanceX", 1, 1, 1, 2, 15.343146))
sketch11.addConstraint(Sketcher.Constraint("DistanceX", -1, 1, 0, 2, 9.828427))
pocket5 = doc.addObject("PartDesign::Pocket", "Pocket004")
body.addObject(pocket5)
pocket5.Profile = sketch11
pocket5.Length = 20
pocket5.Reversed = True

sketch12 = doc.addObject("Sketcher::SketchObject", "Sketch011")
body.addObject(sketch12)
sketch12.AttachmentSupport = (doc.XZ_Plane, [""])
sketch12.MapMode = "FlatFace"
sketch12.AttachmentOffset = App.Placement(Vector(0, 0, -2), App.Rotation())
sketch12.addGeometry(Part.Circle(Vector(30.9, 30.9, 0), Vector(0, 0, 1), 2.1), False)
sketch12.addConstraint(Sketcher.Constraint("Diameter", 0, 4.2))
sketch12.addConstraint(Sketcher.Constraint("DistanceX", -1, 1, 0, 3, 30.935029))
sketch12.addConstraint(Sketcher.Constraint("DistanceY", -1, 1, 0, 3, 30.935029))
pocket6 = doc.addObject("PartDesign::Pocket", "Pocket005")
body.addObject(pocket6)
pocket6.Profile = sketch12
pocket6.Length = 10
pocket6.Reversed = True

doc.recompute()
